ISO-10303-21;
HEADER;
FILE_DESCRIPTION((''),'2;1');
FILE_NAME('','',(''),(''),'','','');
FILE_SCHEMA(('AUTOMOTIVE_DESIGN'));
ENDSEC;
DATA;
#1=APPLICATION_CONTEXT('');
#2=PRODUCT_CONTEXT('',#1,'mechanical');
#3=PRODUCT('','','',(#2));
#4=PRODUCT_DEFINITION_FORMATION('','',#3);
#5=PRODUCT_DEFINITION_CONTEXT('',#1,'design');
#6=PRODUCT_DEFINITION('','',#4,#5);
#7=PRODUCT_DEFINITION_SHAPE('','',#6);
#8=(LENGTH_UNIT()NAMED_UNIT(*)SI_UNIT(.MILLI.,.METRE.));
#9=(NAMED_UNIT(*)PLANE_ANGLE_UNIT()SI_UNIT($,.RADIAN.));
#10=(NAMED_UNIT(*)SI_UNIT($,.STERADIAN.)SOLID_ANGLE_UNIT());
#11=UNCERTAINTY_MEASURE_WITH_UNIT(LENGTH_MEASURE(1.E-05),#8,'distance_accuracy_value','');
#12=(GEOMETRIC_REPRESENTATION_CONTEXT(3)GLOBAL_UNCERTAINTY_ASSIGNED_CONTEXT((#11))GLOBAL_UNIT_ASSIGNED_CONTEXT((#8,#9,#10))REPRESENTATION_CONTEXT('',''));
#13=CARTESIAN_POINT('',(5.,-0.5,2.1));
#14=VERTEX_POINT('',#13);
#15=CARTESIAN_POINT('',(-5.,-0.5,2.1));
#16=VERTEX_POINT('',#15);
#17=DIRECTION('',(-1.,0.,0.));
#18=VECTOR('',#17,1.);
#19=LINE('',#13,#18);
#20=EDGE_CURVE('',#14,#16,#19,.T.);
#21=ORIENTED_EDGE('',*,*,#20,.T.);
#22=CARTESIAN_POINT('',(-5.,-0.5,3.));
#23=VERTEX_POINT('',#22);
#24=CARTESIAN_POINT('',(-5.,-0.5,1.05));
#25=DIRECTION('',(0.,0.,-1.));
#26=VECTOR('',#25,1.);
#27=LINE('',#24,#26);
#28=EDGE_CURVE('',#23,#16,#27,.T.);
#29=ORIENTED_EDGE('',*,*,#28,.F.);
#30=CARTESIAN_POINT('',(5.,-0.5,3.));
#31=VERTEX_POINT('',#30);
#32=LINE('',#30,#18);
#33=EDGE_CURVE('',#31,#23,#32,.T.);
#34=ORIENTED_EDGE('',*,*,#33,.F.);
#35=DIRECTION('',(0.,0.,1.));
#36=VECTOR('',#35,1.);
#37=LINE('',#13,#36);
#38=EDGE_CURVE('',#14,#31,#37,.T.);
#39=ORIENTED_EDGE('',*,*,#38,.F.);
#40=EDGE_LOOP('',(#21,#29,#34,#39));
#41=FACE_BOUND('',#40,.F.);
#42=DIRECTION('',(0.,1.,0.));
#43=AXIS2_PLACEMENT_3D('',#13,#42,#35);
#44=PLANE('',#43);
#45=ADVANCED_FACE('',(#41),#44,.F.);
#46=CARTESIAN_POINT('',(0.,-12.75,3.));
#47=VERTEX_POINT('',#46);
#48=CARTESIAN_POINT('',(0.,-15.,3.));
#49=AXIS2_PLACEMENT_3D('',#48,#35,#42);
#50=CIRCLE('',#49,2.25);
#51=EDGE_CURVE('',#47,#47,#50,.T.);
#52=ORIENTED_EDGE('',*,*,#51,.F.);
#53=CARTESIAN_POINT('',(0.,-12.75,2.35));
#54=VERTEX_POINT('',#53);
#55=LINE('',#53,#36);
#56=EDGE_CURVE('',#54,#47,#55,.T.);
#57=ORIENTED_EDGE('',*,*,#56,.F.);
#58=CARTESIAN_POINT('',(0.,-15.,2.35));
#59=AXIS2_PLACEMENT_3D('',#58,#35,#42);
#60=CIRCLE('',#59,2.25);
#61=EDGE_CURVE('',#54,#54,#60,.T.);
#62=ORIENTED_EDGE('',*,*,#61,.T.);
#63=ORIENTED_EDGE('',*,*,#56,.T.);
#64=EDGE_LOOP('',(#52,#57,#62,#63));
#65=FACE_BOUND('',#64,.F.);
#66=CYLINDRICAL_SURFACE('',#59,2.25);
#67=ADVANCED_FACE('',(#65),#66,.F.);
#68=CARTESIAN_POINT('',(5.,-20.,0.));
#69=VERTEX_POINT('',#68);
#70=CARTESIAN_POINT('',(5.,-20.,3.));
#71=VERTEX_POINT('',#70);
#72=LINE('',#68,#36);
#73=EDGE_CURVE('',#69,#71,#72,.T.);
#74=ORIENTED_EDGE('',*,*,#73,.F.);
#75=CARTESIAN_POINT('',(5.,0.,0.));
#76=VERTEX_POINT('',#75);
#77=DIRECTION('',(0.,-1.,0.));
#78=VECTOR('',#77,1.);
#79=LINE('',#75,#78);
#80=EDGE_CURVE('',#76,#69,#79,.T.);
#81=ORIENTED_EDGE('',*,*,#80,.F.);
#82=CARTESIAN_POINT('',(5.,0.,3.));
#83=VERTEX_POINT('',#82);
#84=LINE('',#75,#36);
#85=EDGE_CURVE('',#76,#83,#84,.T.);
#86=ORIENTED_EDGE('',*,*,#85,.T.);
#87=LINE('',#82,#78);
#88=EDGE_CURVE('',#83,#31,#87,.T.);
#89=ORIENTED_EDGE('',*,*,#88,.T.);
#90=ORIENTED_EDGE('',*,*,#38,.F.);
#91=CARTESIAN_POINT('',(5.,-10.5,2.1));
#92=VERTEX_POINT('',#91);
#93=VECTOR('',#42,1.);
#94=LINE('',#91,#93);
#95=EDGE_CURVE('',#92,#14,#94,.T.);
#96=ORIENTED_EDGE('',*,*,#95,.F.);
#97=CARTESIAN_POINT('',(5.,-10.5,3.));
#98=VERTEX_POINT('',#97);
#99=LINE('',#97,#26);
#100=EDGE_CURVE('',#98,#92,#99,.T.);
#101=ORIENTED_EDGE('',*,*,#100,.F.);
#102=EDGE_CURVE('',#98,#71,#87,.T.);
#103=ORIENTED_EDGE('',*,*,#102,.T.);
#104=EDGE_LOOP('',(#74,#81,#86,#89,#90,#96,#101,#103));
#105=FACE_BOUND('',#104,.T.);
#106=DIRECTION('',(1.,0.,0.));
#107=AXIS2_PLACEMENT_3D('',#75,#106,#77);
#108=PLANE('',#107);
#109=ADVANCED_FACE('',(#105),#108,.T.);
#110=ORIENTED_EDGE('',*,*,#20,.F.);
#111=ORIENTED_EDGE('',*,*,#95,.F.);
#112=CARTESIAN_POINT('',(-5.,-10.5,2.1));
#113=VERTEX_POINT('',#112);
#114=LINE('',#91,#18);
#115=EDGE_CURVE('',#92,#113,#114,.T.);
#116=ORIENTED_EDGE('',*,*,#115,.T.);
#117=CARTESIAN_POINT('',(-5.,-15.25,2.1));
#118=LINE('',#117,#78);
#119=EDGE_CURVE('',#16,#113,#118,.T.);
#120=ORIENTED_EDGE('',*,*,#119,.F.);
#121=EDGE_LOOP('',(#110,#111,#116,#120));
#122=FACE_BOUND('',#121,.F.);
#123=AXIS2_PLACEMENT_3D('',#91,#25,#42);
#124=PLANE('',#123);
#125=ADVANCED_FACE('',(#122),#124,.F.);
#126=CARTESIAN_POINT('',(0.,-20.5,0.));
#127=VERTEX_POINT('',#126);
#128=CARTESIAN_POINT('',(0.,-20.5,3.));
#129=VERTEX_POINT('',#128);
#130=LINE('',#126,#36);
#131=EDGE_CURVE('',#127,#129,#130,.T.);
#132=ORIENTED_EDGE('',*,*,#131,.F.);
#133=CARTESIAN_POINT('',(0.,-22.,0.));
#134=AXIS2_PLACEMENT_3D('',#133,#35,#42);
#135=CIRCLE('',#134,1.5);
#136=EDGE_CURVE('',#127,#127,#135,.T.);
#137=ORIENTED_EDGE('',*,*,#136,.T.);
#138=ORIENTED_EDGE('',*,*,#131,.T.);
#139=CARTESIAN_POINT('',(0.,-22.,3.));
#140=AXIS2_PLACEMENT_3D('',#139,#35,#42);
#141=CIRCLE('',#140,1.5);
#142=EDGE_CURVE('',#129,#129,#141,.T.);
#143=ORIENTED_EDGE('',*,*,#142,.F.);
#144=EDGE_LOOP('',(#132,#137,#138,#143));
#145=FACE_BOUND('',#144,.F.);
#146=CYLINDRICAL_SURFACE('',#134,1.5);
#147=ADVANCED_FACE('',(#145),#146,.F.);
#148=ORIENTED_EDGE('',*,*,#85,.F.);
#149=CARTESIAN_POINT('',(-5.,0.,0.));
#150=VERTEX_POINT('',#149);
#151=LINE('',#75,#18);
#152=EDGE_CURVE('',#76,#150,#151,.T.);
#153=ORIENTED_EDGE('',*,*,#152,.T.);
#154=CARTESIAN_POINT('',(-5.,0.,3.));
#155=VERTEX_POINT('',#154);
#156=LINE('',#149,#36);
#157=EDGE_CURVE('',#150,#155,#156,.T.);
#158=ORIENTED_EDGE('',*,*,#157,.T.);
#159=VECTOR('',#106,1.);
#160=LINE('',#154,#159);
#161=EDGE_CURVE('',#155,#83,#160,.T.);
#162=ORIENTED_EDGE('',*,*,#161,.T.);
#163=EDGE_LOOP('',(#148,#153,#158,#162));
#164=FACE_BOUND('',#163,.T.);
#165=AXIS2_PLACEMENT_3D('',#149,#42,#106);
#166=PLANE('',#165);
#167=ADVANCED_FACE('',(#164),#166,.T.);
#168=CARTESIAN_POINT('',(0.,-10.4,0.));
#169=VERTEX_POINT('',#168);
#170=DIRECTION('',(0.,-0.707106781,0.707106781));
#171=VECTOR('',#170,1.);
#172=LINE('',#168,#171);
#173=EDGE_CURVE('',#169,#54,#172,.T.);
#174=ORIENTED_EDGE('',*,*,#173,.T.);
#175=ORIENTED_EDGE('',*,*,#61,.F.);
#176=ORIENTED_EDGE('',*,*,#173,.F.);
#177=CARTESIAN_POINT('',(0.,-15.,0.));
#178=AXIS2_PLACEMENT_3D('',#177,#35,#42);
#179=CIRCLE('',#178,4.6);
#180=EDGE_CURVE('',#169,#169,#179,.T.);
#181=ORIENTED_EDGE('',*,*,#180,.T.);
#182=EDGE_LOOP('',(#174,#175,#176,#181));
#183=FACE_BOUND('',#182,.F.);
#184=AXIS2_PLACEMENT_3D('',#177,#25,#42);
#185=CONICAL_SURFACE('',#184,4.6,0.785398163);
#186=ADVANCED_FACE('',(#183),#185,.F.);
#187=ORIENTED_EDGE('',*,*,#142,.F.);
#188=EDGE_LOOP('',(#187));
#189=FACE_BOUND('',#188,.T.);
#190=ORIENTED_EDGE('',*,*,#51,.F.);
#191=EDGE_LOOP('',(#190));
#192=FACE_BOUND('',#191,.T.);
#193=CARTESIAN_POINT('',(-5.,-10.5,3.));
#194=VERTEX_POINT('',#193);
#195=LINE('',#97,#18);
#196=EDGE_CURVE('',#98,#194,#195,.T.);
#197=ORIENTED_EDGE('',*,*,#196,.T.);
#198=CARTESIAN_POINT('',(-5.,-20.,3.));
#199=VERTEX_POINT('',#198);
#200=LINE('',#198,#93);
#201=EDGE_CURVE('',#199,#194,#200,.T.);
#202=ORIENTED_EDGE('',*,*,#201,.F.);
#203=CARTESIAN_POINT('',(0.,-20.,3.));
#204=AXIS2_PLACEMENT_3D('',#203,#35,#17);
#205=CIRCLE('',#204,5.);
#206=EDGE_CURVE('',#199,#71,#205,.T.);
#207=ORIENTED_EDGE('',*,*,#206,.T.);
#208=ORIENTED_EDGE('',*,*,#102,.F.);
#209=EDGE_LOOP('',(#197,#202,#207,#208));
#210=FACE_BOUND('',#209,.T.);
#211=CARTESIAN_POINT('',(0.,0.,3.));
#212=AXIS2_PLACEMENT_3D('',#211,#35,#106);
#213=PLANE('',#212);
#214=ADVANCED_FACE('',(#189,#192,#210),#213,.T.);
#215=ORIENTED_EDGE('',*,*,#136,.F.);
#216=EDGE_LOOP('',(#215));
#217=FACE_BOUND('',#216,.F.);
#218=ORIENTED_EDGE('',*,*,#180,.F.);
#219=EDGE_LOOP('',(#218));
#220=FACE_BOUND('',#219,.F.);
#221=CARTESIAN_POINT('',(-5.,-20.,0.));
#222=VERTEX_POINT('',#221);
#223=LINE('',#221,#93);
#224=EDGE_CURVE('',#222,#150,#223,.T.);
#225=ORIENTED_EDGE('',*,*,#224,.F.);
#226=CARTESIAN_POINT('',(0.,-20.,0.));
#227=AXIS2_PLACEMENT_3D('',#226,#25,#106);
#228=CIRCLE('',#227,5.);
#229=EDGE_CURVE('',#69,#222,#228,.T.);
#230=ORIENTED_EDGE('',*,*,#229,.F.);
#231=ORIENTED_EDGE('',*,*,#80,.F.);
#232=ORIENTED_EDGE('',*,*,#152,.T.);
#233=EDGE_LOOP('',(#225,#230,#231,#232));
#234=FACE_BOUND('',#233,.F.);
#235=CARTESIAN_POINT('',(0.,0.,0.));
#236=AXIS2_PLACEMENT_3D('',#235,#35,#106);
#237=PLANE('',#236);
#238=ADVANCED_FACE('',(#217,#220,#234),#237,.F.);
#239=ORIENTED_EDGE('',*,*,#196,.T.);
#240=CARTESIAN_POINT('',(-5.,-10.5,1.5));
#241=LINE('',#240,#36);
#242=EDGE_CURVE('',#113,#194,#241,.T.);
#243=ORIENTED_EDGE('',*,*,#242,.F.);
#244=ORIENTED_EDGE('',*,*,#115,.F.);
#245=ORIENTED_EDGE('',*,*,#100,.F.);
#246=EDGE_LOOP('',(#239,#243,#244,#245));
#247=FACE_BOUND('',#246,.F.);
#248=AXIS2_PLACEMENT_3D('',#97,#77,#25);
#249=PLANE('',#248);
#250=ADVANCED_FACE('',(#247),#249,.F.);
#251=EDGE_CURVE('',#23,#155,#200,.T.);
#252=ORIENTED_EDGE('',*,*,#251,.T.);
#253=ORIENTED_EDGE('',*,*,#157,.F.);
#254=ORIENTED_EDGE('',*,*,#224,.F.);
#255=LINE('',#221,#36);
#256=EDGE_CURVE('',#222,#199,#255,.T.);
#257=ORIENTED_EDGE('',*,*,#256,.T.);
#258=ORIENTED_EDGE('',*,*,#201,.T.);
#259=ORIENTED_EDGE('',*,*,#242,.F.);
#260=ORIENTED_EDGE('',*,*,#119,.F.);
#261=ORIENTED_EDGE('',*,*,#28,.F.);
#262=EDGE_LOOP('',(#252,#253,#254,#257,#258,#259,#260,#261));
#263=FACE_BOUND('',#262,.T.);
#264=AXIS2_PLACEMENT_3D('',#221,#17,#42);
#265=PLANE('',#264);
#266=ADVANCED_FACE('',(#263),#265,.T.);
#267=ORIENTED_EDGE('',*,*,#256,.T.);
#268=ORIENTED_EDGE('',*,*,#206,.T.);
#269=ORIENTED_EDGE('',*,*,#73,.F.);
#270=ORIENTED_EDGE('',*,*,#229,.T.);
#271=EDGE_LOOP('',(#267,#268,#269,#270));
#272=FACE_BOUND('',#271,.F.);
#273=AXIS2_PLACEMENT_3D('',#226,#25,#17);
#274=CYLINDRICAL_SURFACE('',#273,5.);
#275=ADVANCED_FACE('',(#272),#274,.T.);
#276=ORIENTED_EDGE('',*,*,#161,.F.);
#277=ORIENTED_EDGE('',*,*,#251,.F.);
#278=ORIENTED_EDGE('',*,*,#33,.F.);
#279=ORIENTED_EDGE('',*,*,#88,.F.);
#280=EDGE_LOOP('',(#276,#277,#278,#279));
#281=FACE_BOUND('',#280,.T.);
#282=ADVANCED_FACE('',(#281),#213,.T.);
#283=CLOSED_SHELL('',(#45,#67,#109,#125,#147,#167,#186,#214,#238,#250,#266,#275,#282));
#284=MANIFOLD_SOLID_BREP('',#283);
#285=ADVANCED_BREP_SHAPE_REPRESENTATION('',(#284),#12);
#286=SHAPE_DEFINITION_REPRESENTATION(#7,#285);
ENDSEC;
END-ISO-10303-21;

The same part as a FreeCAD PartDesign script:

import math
import FreeCAD as App
import Part
import Sketcher

doc = App.newDocument("Part")
body = doc.addObject("PartDesign::Body", "Body")

sketch1 = body.newObject("Sketcher::SketchObject", "Sketch")
sketch1.AttachmentSupport = (doc.getObject("XY_Plane"), [""])
sketch1.MapMode = "FlatFace"
sketch1.addGeometry([
    Part.LineSegment(App.Vector(-5, 0, 0), App.Vector(-5, -20, 0)),
    Part.ArcOfCircle(Part.Circle(App.Vector(0, -20, 0), App.Vector(0, 0, 1), 5), math.radians(180), math.radians(360)),
    Part.LineSegment(App.Vector(5, -20, 0), App.Vector(5, 0, 0)),
    Part.LineSegment(App.Vector(5, 0, 0), App.Vector(-5, 0, 0)),
], False)
sketch1.addConstraint([
    Sketcher.Constraint("Tangent", 0, 2, 1, 1),
    Sketcher.Constraint("Tangent", 1, 2, 2, 1),
    Sketcher.Constraint("Coincident", 2, 2, 3, 1),
    Sketcher.Constraint("Coincident", 3, 2, 0, 1),
    Sketcher.Constraint("Vertical", 0),
    Sketcher.Constraint("Vertical", 2),
    Sketcher.Constraint("Horizontal", 3),
    Sketcher.Constraint("Symmetric", 2, 2, 3, 2, -1, 1),
    Sketcher.Constraint("Radius", 1, 5.0),
    Sketcher.Constraint("DistanceY", 0, 2, 0, 1, 20.0),
])
pad1 = body.newObject("PartDesign::Pad", "Pad")
pad1.Profile = sketch1
pad1.Length = 3

sketch2 = body.newObject("Sketcher::SketchObject", "Sketch001")
sketch2.AttachmentSupport = (doc.getObject("YZ_Plane"), [""])
sketch2.MapMode = "FlatFace"
sketch2.AttachmentOffset = App.Placement(App.Vector(0, 0, 5), App.Rotation())
sketch2.addGeometry([
    Part.LineSegment(App.Vector(-0.5, 3, 0), App.Vector(-10.5, 3, 0)),
    Part.LineSegment(App.Vector(-10.5, 3, 0), App.Vector(-10.5, 2.1, 0)),
    Part.LineSegment(App.Vector(-10.5, 2.1, 0), App.Vector(-0.5, 2.1, 0)),
    Part.LineSegment(App.Vector(-0.5, 2.1, 0), App.Vector(-0.5, 3, 0)),
], False)
sketch2.addConstraint([
    Sketcher.Constraint("Coincident", 0, 2, 1, 1),
    Sketcher.Constraint("Coincident", 1, 2, 2, 1),
    Sketcher.Constraint("Coincident", 2, 2, 3, 1),
    Sketcher.Constraint("Coincident", 3, 2, 0, 1),
    Sketcher.Constraint("Horizontal", 0),
    Sketcher.Constraint("Vertical", 1),
    Sketcher.Constraint("Horizontal", 2),
    Sketcher.Constraint("Vertical", 3),
    Sketcher.Constraint("DistanceX", 0, 2, 0, 1, 10.0),
    Sketcher.Constraint("DistanceY", 1, 2, 1, 1, 0.9),
    Sketcher.Constraint("DistanceX", 2, 2, -1, 1, 0.5),
    Sketcher.Constraint("DistanceY", -1, 1, 0, 2, 3.0),
])
pocket1 = body.newObject("PartDesign::Pocket", "Pocket")
pocket1.Profile = sketch2
pocket1.Type = "ThroughAll"

sketch3 = body.newObject("Sketcher::SketchObject", "Sketch002")
sketch3.AttachmentSupport = (doc.getObject("XY_Plane"), [""])
sketch3.MapMode = "FlatFace"
sketch3.addGeometry(Part.Circle(App.Vector(0, -15, 0), App.Vector(0, 0, 1), 2.25), False)
sketch3.addConstraint([
    Sketcher.Constraint("PointOnObject", 0, 3, -2),
    Sketcher.Constraint("Diameter", 0, 4.5),
    Sketcher.Constraint("DistanceY", 0, 3, -1, 1, 15.0),
])
doc.recompute()
hole = body.newObject("PartDesign::Hole", "Hole")
hole.Profile = sketch3
hole.ThreadType = "None"
hole.Diameter = 4.5
hole.DepthType = "ThroughAll"
hole.HoleCutType = "Countersink"
hole.HoleCutDiameter = 9.2
hole.HoleCutCountersinkAngle = 90
hole.Reversed = True

sketch4 = body.newObject("Sketcher::SketchObject", "Sketch003")
sketch4.AttachmentSupport = (doc.getObject("XY_Plane"), [""])
sketch4.MapMode = "FlatFace"
sketch4.addGeometry(Part.Circle(App.Vector(0, -22, 0), App.Vector(0, 0, 1), 1.5), False)
sketch4.addConstraint([
    Sketcher.Constraint("PointOnObject", 0, 3, -2),
    Sketcher.Constraint("Diameter", 0, 3.0),
    Sketcher.Constraint("DistanceY", 0, 3, -1, 1, 22.0),
])
doc.recompute()
hole2 = body.newObject("PartDesign::Hole", "Hole001")
hole2.Profile = sketch4
hole2.ThreadType = "None"
hole2.Diameter = 3
hole2.DepthType = "ThroughAll"
hole2.Reversed = True

doc.recompute()
